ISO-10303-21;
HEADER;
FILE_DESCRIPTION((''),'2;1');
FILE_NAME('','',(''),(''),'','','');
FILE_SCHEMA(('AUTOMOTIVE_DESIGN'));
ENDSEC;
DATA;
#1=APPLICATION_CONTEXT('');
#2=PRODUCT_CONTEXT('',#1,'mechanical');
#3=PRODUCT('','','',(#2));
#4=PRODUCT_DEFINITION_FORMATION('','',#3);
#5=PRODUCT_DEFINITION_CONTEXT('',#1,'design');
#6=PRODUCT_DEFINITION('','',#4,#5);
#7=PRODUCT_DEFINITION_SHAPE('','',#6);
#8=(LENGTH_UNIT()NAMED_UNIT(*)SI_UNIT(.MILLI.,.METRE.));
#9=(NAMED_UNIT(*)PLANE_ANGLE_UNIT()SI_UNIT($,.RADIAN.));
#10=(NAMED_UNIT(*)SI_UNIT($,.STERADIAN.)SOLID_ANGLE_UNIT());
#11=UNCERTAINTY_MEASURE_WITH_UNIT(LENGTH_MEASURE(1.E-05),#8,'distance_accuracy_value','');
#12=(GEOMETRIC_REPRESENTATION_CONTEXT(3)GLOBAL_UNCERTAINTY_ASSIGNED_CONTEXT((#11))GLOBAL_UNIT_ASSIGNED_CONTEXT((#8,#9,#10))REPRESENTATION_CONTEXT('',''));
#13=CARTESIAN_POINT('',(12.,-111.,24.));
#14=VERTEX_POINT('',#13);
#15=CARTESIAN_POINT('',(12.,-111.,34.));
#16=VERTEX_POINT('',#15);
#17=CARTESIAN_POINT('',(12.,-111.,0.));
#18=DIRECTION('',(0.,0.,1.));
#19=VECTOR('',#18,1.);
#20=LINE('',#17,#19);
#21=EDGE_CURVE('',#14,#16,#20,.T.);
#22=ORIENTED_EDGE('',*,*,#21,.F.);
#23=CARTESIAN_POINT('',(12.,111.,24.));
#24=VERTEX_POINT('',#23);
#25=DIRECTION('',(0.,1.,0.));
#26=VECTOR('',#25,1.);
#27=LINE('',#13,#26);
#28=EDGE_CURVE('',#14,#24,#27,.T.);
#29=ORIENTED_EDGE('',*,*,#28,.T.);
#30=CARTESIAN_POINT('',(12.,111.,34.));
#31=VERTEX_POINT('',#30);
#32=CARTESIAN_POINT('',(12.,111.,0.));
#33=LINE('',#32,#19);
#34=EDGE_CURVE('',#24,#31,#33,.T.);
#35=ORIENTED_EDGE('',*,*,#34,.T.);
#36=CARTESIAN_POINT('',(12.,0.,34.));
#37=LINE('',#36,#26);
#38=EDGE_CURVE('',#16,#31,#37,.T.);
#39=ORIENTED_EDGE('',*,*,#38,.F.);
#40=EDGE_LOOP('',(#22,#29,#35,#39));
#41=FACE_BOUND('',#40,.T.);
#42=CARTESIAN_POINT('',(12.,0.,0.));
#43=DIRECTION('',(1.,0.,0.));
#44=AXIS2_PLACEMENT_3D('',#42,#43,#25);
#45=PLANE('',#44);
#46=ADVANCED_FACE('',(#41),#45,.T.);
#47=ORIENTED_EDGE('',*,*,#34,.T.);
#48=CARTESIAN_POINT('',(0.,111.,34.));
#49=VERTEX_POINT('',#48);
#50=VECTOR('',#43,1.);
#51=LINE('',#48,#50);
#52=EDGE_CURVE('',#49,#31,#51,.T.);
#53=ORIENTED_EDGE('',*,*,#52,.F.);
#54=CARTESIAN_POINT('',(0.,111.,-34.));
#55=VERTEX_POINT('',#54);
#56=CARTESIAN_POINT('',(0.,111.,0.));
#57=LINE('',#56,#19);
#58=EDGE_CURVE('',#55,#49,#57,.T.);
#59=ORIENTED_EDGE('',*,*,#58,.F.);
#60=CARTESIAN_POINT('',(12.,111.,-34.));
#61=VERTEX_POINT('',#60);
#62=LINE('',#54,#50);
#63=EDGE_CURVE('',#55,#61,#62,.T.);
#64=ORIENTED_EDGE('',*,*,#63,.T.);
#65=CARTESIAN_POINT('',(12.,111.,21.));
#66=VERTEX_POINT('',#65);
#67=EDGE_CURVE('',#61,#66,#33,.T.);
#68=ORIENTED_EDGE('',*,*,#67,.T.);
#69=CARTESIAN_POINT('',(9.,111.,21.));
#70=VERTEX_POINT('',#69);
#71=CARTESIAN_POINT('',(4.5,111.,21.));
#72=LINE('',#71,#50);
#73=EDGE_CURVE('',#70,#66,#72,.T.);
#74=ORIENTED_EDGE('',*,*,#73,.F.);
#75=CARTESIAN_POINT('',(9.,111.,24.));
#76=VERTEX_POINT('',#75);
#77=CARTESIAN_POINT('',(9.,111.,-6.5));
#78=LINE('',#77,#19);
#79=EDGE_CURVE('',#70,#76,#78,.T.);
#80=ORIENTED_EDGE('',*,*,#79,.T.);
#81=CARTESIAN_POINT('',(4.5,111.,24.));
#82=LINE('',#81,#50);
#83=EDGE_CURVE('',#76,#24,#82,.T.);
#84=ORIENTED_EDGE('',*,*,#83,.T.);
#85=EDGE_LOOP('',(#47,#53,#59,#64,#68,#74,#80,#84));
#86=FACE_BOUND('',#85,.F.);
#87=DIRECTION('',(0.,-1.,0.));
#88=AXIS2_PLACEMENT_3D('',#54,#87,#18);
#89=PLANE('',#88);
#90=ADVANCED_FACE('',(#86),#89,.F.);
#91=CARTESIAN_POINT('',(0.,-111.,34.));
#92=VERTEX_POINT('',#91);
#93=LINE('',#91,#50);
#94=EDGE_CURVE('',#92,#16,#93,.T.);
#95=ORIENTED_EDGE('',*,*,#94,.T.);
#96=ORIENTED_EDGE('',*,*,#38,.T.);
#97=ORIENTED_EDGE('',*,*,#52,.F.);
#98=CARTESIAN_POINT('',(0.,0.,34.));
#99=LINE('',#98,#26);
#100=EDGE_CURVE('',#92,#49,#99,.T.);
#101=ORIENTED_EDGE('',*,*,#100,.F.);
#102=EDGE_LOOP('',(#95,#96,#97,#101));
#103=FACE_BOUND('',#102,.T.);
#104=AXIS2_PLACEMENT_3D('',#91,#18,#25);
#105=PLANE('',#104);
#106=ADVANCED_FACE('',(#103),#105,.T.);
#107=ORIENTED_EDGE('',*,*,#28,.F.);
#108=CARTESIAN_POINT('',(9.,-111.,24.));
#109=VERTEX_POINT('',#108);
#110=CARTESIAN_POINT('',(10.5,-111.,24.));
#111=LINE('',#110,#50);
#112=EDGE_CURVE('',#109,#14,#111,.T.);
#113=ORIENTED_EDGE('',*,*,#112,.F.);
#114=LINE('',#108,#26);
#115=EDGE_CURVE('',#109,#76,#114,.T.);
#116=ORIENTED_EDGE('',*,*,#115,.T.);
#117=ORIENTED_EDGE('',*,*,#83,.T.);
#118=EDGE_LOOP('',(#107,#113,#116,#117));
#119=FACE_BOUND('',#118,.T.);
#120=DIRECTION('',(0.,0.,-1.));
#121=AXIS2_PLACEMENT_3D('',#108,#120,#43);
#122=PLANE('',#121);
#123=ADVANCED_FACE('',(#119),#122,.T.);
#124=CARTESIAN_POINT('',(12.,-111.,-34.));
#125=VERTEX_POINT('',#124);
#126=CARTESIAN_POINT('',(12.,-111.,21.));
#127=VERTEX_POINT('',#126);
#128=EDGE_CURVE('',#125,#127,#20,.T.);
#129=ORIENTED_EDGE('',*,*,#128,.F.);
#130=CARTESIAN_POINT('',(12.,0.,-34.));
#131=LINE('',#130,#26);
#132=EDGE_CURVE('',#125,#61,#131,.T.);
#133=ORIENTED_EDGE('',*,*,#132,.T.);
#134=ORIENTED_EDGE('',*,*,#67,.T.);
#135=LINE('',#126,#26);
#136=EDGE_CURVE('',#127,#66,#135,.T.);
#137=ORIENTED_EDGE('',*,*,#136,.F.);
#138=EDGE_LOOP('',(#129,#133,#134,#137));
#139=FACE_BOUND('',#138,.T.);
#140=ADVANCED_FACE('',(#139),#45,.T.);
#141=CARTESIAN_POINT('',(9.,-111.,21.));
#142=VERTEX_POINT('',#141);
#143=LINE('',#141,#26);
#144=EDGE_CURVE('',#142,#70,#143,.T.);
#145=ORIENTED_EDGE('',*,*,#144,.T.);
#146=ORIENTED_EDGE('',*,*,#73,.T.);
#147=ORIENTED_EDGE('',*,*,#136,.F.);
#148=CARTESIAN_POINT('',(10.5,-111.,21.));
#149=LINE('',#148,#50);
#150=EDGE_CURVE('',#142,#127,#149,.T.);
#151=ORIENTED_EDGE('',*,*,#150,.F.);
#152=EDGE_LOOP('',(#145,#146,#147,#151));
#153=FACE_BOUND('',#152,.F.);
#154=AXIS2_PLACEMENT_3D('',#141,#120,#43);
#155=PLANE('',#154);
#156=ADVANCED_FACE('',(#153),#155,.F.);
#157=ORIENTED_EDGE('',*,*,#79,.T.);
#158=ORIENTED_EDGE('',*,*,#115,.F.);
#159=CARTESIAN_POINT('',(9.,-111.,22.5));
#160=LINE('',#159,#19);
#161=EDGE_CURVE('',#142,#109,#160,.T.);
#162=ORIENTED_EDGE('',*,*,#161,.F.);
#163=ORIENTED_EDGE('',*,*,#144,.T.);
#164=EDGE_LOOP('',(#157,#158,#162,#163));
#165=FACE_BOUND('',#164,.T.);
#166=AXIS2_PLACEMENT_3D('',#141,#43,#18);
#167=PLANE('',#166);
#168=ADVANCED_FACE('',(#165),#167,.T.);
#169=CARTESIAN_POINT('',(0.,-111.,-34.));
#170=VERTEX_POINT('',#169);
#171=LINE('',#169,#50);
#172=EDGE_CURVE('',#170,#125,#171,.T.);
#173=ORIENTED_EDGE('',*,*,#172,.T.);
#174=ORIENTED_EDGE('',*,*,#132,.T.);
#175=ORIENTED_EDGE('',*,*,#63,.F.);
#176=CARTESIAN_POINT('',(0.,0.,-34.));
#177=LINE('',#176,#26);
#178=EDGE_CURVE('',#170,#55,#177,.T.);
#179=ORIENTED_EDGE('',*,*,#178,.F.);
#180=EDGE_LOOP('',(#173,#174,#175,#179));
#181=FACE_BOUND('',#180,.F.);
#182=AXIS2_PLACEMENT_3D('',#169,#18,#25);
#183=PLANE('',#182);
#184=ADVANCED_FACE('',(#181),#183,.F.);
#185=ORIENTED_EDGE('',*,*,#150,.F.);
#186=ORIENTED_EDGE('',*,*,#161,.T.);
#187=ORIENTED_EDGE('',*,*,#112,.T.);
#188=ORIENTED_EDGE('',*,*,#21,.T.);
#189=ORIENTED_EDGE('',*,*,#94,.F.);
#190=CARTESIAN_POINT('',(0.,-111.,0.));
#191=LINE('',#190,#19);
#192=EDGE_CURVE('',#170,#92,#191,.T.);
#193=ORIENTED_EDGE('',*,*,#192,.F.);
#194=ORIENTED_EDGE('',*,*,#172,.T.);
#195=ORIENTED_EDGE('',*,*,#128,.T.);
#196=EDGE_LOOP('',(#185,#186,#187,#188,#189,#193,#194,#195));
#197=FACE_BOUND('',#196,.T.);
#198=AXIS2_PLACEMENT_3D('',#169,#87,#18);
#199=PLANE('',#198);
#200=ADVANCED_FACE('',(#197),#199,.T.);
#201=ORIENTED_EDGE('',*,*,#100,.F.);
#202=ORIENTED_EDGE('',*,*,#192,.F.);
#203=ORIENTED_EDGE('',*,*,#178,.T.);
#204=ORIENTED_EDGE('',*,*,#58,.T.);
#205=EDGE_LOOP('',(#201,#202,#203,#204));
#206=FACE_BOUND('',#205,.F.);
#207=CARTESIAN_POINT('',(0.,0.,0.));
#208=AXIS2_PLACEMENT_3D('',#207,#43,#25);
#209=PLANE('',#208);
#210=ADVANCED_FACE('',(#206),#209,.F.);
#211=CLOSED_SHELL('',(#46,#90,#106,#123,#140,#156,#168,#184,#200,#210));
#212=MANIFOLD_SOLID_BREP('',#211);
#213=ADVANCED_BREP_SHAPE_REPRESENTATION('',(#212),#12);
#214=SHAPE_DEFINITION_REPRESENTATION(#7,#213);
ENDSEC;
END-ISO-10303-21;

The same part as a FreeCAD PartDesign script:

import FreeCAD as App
import Part
import Sketcher


def add_polygon(sketch, points):
    """Adds a closed chain of lines whose ends are joined by coincident constraints."""
    first, n = sketch.GeometryCount, len(points)
    for a, b in zip(points, points[1:] + points[:1]):
        sketch.addGeometry(Part.LineSegment(App.Vector(*a, 0), App.Vector(*b, 0)), False)
    for i in range(n):
        sketch.addConstraint(Sketcher.Constraint("Coincident", first + i, 2, first + (i + 1) % n, 1))

doc = App.newDocument("Part")
params = doc.addObject("Spreadsheet::Sheet", "Params")
for row, (alias, value) in enumerate([
    ("sketch1_width", "222 mm"),
    ("sketch1_height", "68 mm"),
    ("pad1_length", "12 mm"),
    ("sketch2_width", "3 mm"),
    ("pocket1_length", "31343.6 mm"),
], start=1):
    params.set(f"A{row}", alias)
    params.set(f"B{row}", "=" + value)
    params.setAlias(f"B{row}", alias)

body = doc.addObject("PartDesign::Body", "Body")

sketch1 = body.newObject("Sketcher::SketchObject", "Sketch")
sketch1.AttachmentSupport = (doc.getObject("YZ_Plane"), [""])
sketch1.MapMode = "FlatFace"
add_polygon(sketch1, [(-111, 34), (-111, -34), (111, -34), (111, 34)])
sketch1.addConstraint([
    Sketcher.Constraint("Vertical", 0),
    Sketcher.Constraint("Horizontal", 1),
    Sketcher.Constraint("Vertical", 2),
    Sketcher.Constraint("Horizontal", 3),
    Sketcher.Constraint("Symmetric", 0, 2, 2, 2, -1, 1),
    Sketcher.Constraint("DistanceX", 1, 1, 1, 2, 222.0),
    Sketcher.Constraint("DistanceY", 0, 2, 0, 1, 68.0),
])
sketch1.setExpression("Constraints[9]", "Params.sketch1_width")
sketch1.setExpression("Constraints[10]", "Params.sketch1_height")
pad1 = body.newObject("PartDesign::Pad", "Pad")
pad1.Profile = sketch1
pad1.setExpression("Length", "Params.pad1_length")

sketch2 = body.newObject("Sketcher::SketchObject", "Sketch001")
sketch2.AttachmentSupport = (doc.getObject("XZ_Plane"), [""])
sketch2.MapMode = "FlatFace"
sketch2.AttachmentOffset = App.Placement(App.Vector(0, 0, 111), App.Rotation())
add_polygon(sketch2, [(9, 24), (9, 21), (12, 21), (12, 24)])
sketch2.addConstraint([
    Sketcher.Constraint("Vertical", 0),
    Sketcher.Constraint("Horizontal", 1),
    Sketcher.Constraint("Vertical", 2),
    Sketcher.Constraint("Horizontal", 3),
    Sketcher.Constraint("Equal", 3, 0),
    Sketcher.Constraint("DistanceX", 1, 1, 1, 2, 3.0),
    Sketcher.Constraint("DistanceX", -1, 1, 0, 2, 9.0),
    Sketcher.Constraint("DistanceY", -1, 1, 0, 2, 21.0),
])
sketch2.setExpression("Constraints[9]", "Params.sketch2_width")
pocket1 = body.newObject("PartDesign::Pocket", "Pocket")
pocket1.Profile = sketch2
pocket1.setExpression("Length", "Params.pocket1_length")

doc.recompute()
